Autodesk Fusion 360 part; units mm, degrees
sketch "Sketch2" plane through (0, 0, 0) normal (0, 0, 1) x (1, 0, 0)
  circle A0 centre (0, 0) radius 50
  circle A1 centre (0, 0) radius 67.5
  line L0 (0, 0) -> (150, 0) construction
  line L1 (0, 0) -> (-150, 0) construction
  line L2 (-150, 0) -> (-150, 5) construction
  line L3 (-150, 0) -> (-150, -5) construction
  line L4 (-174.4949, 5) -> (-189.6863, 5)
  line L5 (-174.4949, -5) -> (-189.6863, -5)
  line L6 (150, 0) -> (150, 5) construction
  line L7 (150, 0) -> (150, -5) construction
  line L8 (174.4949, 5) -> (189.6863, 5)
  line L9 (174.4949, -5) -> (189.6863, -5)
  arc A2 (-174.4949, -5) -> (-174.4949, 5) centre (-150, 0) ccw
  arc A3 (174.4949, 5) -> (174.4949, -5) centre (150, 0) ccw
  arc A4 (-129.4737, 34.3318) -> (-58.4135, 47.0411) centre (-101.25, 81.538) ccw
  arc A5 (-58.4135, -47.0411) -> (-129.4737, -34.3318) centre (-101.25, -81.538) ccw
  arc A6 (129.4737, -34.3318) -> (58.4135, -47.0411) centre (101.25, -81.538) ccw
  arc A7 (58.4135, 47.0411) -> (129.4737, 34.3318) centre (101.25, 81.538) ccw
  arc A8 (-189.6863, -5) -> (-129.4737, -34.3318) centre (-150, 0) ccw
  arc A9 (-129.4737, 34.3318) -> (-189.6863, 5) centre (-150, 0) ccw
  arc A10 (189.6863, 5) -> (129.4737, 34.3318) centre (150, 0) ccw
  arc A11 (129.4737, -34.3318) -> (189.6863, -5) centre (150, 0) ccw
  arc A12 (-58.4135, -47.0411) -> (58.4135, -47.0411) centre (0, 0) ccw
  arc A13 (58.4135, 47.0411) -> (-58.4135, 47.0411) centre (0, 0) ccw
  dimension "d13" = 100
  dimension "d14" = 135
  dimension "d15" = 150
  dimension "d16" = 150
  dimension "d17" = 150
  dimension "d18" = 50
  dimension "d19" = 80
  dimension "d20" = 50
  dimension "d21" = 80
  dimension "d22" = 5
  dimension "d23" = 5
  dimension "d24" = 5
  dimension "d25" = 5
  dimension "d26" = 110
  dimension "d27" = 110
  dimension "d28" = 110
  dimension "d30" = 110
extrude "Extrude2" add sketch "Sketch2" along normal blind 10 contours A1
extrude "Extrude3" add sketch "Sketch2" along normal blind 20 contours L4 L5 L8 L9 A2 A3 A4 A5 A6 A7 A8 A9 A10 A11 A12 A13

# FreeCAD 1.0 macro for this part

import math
import FreeCAD as App
import Part
import Sketcher

doc = App.newDocument("Part")
body = doc.addObject("PartDesign::Body", "Body")

sketch1 = body.newObject("Sketcher::SketchObject", "Sketch")
sketch1.AttachmentSupport = (doc.getObject("XY_Plane"), [""])
sketch1.MapMode = "FlatFace"
sketch1.addGeometry(Part.Circle(App.Vector(0, 0, 0), App.Vector(0, 0, 1), 68), False)
sketch1.addGeometry(Part.Circle(App.Vector(0, 0, 0), App.Vector(0, 0, 1), 50), False)
sketch1.addConstraint(Sketcher.Constraint("Coincident", 0, 3, -1, 1))
sketch1.addConstraint(Sketcher.Constraint("Coincident", 1, 3, -1, 1))
sketch1.addConstraint(Sketcher.Constraint("Diameter", 0, 135.0))
sketch1.addConstraint(Sketcher.Constraint("Diameter", 1, 100.0))
pad1 = body.newObject("PartDesign::Pad", "Pad")
pad1.Profile = sketch1
pad1.Length = 10

sketch2 = body.newObject("Sketcher::SketchObject", "Sketch001")
sketch2.AttachmentSupport = (doc.getObject("XY_Plane"), [""])
sketch2.MapMode = "FlatFace"
sketch2.addGeometry(Part.LineSegment(App.Vector(-190, 5, 0), App.Vector(-174, 5, 0)), False)
sketch2.addGeometry(Part.ArcOfCircle(Part.Circle(App.Vector(-150, 0, 0), App.Vector(0, 0, 1), 25), math.radians(-168), math.radians(168)), False)
sketch2.addGeometry(Part.LineSegment(App.Vector(-174, -5, 0), App.Vector(-190, -5, 0)), False)
sketch2.addGeometry(Part.ArcOfCircle(Part.Circle(App.Vector(-150, 0, 0), App.Vector(0, 0, 1), 40), math.radians(-173), math.radians(-59)), False)
sketch2.addGeometry(Part.ArcOfCircle(Part.Circle(App.Vector(-101, -82, 0), App.Vector(0, 0, 1), 55), math.radians(39), math.radians(121)), False)
sketch2.addGeometry(Part.ArcOfCircle(Part.Circle(App.Vector(0, 0, 0), App.Vector(0, 0, 1), 75), math.radians(-141), math.radians(-39)), False)
sketch2.addGeometry(Part.ArcOfCircle(Part.Circle(App.Vector(101, -82, 0), App.Vector(0, 0, 1), 55), math.radians(59), math.radians(141)), False)
sketch2.addGeometry(Part.ArcOfCircle(Part.Circle(App.Vector(150, 0, 0), App.Vector(0, 0, 1), 40), math.radians(-121), math.radians(-7)), False)
sketch2.addGeometry(Part.LineSegment(App.Vector(190, -5, 0), App.Vector(174, -5, 0)), False)
sketch2.addGeometry(Part.ArcOfCircle(Part.Circle(App.Vector(150, 0, 0), App.Vector(0, 0, 1), 25), math.radians(12), math.radians(348)), False)
sketch2.addGeometry(Part.LineSegment(App.Vector(174, 5, 0), App.Vector(190, 5, 0)), False)
sketch2.addGeometry(Part.ArcOfCircle(Part.Circle(App.Vector(150, 0, 0), App.Vector(0, 0, 1), 40), math.radians(7), math.radians(121)), False)
sketch2.addGeometry(Part.ArcOfCircle(Part.Circle(App.Vector(101, 82, 0), App.Vector(0, 0, 1), 55), math.radians(-141), math.radians(-59)), False)
sketch2.addGeometry(Part.ArcOfCircle(Part.Circle(App.Vector(0, 0, 0), App.Vector(0, 0, 1), 75), math.radians(39), math.radians(141)), False)
sketch2.addGeometry(Part.ArcOfCircle(Part.Circle(App.Vector(-101, 82, 0), App.Vector(0, 0, 1), 55), math.radians(-121), math.radians(-39)), False)
sketch2.addGeometry(Part.ArcOfCircle(Part.Circle(App.Vector(-150, 0, 0), App.Vector(0, 0, 1), 40), math.radians(59), math.radians(173)), False)
sketch2.addGeometry(Part.Circle(App.Vector(0, 0, 0), App.Vector(0, 0, 1), 68), False)
sketch2.addConstraint(Sketcher.Constraint("Coincident", 0, 2, 1, 2))
sketch2.addConstraint(Sketcher.Constraint("Coincident", 1, 1, 2, 1))
sketch2.addConstraint(Sketcher.Constraint("Coincident", 2, 2, 3, 1))
sketch2.addConstraint(Sketcher.Constraint("Tangent", 3, 2, 4, 2))
sketch2.addConstraint(Sketcher.Constraint("Tangent", 4, 1, 5, 1))
sketch2.addConstraint(Sketcher.Constraint("Tangent", 5, 2, 6, 2))
sketch2.addConstraint(Sketcher.Constraint("Tangent", 6, 1, 7, 1))
sketch2.addConstraint(Sketcher.Constraint("Coincident", 7, 2, 8, 1))
sketch2.addConstraint(Sketcher.Constraint("Coincident", 8, 2, 9, 2))
sketch2.addConstraint(Sketcher.Constraint("Coincident", 9, 1, 10, 1))
sketch2.addConstraint(Sketcher.Constraint("Coincident", 10, 2, 11, 1))
sketch2.addConstraint(Sketcher.Constraint("Tangent", 11, 2, 12, 2))
sketch2.addConstraint(Sketcher.Constraint("Tangent", 12, 1, 13, 1))
sketch2.addConstraint(Sketcher.Constraint("Tangent", 13, 2, 14, 2))
sketch2.addConstraint(Sketcher.Constraint("Tangent", 14, 1, 15, 1))
sketch2.addConstraint(Sketcher.Constraint("Coincident", 15, 2, 0, 1))
sketch2.addConstraint(Sketcher.Constraint("Horizontal", 0))
sketch2.addConstraint(Sketcher.Constraint("Horizontal", 2))
sketch2.addConstraint(Sketcher.Constraint("Horizontal", 8))
sketch2.addConstraint(Sketcher.Constraint("Horizontal", 10))
sketch2.addConstraint(Sketcher.Constraint("Coincident", 5, 3, -1, 1))
sketch2.addConstraint(Sketcher.Constraint("Coincident", 13, 3, -1, 1))
sketch2.addConstraint(Sketcher.Constraint("Coincident", 16, 3, -1, 1))
sketch2.addConstraint(Sketcher.Constraint("Coincident", 3, 3, 1, 3))
sketch2.addConstraint(Sketcher.Constraint("Coincident", 9, 3, 7, 3))
sketch2.addConstraint(Sketcher.Constraint("Coincident", 11, 3, 7, 3))
sketch2.addConstraint(Sketcher.Constraint("Coincident", 15, 3, 1, 3))
sketch2.addConstraint(Sketcher.Constraint("Equal", 4, 6))
sketch2.addConstraint(Sketcher.Constraint("Equal", 3, 7))
sketch2.addConstraint(Sketcher.Constraint("Equal", 1, 9))
sketch2.addConstraint(Sketcher.Constraint("Equal", 7, 11))
sketch2.addConstraint(Sketcher.Constraint("Equal", 6, 12))
sketch2.addConstraint(Sketcher.Constraint("Equal", 5, 13))
sketch2.addConstraint(Sketcher.Constraint("Equal", 12, 14))
sketch2.addConstraint(Sketcher.Constraint("Equal", 11, 15))
sketch2.addConstraint(Sketcher.Constraint("Symmetric", 1, 3, 7, 3, -1, 1))
sketch2.addConstraint(Sketcher.Constraint("Symmetric", 2, 2, 7, 2, -2))
sketch2.addConstraint(Sketcher.Constraint("Horizontal", 0, 2, 9, 1))
sketch2.addConstraint(Sketcher.Constraint("Vertical", 0, 2, 1, 1))
sketch2.addConstraint(Sketcher.Constraint("Diameter", 16, 135.0))
sketch2.addConstraint(Sketcher.Constraint("Radius", 1, 25.0))
sketch2.addConstraint(Sketcher.Constraint("Radius", 3, 40.0))
sketch2.addConstraint(Sketcher.Constraint("Radius", 4, 55.0))
sketch2.addConstraint(Sketcher.Constraint("Radius", 5, 75.0))
sketch2.addConstraint(Sketcher.Constraint("DistanceX", 1, 3, -1, 1, 150.0))
sketch2.addConstraint(Sketcher.Constraint("DistanceY", -1, 1, 0, 2, 5.0))
pad2 = body.newObject("PartDesign::Pad", "Pad001")
pad2.Profile = sketch2
pad2.Length = 20

doc.recompute()
